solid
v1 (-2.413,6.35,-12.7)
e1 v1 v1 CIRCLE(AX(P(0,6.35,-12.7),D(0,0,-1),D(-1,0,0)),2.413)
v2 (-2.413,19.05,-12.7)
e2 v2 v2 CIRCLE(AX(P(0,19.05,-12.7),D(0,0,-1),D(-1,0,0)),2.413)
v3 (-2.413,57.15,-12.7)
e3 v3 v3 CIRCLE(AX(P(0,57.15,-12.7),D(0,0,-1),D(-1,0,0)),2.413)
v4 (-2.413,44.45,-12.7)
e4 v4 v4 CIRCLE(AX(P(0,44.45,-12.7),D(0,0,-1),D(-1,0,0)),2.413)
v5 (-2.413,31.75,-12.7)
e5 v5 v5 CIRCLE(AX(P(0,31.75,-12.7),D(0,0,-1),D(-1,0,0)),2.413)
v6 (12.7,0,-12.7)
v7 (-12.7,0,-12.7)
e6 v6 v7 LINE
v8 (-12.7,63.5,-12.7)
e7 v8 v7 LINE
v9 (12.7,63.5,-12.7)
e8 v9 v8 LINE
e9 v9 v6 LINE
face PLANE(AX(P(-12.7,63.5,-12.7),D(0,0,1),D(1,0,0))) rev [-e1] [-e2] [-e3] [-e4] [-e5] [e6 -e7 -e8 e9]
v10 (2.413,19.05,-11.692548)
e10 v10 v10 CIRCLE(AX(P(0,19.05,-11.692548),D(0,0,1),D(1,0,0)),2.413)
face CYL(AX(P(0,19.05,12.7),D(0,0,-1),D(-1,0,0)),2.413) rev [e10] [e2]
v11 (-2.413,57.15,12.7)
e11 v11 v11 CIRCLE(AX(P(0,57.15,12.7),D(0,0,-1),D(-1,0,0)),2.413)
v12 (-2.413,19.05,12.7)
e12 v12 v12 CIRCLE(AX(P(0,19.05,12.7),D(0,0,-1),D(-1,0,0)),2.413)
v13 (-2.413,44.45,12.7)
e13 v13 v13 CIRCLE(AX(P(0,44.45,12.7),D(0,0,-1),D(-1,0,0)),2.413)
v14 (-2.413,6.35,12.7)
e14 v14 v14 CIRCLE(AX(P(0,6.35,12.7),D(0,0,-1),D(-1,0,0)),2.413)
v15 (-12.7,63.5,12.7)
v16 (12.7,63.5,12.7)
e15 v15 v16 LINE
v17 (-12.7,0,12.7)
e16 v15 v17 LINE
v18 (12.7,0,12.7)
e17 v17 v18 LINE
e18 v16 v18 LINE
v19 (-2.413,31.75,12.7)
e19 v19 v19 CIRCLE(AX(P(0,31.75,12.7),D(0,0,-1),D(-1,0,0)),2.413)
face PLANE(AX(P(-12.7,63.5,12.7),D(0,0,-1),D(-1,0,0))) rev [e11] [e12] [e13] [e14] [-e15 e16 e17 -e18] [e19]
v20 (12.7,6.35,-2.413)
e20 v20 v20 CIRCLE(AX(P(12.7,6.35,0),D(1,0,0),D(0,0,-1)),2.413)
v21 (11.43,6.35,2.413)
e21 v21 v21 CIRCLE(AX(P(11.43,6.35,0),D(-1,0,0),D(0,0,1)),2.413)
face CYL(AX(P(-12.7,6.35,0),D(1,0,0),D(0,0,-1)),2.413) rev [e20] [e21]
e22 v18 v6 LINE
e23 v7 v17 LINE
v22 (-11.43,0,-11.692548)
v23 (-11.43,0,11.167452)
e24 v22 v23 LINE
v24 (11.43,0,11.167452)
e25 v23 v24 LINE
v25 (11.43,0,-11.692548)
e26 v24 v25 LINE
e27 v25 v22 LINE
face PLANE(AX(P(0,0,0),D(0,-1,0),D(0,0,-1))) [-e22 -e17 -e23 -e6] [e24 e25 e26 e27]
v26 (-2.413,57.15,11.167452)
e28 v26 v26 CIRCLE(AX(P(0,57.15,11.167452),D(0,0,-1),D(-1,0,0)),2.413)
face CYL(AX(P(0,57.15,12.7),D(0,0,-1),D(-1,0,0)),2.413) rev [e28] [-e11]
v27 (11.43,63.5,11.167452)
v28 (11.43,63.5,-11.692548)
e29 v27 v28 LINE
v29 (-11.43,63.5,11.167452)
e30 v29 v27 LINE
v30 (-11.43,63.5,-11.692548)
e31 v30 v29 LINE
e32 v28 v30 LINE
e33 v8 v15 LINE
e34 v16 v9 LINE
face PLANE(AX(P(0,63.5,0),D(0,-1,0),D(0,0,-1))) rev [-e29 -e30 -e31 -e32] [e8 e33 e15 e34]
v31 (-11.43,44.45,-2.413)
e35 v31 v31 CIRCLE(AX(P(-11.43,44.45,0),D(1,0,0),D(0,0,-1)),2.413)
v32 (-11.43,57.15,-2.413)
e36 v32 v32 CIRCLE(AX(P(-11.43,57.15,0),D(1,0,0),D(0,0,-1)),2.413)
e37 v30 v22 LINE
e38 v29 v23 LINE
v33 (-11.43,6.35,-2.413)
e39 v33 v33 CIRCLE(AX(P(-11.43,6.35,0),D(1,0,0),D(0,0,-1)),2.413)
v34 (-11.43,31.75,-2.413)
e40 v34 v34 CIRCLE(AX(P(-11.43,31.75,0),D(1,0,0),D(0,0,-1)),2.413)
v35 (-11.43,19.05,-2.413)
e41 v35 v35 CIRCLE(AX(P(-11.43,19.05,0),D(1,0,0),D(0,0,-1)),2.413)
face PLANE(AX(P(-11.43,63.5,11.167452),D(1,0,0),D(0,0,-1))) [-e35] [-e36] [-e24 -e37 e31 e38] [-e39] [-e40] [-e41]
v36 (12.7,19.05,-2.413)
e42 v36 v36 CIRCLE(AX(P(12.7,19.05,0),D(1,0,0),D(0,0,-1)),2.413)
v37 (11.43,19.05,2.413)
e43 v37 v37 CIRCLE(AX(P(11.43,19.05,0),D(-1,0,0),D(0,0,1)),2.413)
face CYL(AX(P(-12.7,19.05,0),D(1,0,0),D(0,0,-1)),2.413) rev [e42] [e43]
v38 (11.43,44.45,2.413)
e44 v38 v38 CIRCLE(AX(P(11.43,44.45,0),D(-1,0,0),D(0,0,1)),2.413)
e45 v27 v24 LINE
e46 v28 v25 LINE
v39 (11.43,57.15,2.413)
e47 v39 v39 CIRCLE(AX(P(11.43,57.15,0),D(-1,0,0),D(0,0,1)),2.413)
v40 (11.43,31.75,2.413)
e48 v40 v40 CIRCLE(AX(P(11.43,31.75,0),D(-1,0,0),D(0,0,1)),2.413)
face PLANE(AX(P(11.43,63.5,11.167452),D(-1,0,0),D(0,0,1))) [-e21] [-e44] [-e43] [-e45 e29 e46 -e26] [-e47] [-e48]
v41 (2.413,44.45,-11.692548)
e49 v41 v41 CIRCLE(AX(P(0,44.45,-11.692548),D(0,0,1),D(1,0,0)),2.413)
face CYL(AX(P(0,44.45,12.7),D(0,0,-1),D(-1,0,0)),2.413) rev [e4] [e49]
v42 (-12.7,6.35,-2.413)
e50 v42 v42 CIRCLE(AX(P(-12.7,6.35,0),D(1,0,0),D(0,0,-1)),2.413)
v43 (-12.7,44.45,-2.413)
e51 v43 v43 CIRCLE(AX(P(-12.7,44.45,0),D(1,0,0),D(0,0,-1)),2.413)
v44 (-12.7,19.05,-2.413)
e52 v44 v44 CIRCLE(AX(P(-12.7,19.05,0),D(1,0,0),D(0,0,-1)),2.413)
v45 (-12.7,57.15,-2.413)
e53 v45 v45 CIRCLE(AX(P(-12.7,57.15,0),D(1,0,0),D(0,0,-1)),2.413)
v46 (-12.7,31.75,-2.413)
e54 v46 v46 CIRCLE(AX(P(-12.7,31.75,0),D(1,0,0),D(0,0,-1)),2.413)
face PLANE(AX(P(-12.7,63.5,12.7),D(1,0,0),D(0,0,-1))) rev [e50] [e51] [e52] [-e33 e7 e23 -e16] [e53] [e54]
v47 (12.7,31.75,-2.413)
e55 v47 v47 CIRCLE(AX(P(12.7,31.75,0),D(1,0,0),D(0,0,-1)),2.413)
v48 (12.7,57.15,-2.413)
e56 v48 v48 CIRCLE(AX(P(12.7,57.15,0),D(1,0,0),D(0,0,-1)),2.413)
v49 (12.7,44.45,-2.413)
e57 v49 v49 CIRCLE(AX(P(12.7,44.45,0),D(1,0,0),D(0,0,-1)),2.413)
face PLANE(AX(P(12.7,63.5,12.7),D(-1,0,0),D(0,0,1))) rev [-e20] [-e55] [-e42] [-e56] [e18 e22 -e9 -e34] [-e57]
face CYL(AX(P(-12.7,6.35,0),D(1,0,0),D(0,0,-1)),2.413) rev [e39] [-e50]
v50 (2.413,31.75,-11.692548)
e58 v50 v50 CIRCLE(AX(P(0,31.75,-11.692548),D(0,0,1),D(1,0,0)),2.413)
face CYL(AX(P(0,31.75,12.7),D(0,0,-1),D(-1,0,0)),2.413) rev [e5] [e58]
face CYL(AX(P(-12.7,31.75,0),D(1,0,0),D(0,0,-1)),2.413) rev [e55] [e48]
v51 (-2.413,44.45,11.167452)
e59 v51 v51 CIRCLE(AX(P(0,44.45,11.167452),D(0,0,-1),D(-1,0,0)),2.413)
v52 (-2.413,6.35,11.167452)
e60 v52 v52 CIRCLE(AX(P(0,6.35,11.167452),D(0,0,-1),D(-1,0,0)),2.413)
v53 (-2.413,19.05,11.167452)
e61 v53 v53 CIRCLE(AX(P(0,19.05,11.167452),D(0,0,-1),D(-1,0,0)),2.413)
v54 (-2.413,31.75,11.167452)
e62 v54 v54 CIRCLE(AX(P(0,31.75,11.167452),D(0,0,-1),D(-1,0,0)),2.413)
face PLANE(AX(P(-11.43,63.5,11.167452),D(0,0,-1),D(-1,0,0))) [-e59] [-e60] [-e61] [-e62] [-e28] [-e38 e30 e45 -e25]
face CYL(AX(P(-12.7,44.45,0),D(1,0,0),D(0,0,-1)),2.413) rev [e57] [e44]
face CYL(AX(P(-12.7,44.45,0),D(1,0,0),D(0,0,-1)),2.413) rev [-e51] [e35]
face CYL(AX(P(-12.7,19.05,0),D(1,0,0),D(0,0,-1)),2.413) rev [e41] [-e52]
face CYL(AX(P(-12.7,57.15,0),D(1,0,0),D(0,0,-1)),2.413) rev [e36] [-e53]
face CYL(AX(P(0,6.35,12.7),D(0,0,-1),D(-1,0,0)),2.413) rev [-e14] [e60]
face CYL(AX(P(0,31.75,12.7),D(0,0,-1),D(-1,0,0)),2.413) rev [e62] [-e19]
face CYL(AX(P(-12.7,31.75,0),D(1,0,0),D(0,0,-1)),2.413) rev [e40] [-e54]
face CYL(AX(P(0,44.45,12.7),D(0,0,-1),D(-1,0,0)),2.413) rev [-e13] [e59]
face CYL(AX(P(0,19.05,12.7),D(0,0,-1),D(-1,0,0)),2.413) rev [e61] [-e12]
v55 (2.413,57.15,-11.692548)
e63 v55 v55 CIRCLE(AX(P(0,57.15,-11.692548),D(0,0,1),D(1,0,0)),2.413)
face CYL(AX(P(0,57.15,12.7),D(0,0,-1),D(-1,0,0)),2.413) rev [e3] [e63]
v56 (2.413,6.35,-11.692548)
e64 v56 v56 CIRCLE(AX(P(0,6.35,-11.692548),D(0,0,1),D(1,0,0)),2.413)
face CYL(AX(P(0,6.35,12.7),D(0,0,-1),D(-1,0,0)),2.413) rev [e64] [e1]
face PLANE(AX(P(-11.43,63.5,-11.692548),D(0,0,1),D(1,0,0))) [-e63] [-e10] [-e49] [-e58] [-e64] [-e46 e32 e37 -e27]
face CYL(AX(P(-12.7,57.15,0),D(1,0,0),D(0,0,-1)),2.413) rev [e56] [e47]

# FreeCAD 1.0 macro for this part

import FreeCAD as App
import Part
import Sketcher

V = App.Vector
Q = App.Units.Quantity


def add_polygon(sketch, points):
    """Adds a closed chain of lines whose ends are joined by coincident constraints."""
    first, n = sketch.GeometryCount, len(points)
    for a, b in zip(points, points[1:] + points[:1]):
        sketch.addGeometry(Part.LineSegment(App.Vector(*a, 0), App.Vector(*b, 0)), False)
    for i in range(n):
        sketch.addConstraint(Sketcher.Constraint("Coincident", first + i, 2, first + (i + 1) % n, 1))

doc = App.newDocument("Part")
body = doc.addObject("PartDesign::Body", "Body")

sketch1 = body.newObject("Sketcher::SketchObject", "Sketch")
sketch1.AttachmentSupport = (doc.getObject("XZ_Plane"), [""])
sketch1.MapMode = "FlatFace"
add_polygon(sketch1, [(-13, -13), (-13, 13), (13, 13), (13, -13)])
add_polygon(sketch1, [(11, 11), (-11, 11), (-11, -12), (11, -12)])
sketch1.addConstraint([
    Sketcher.Constraint("Vertical", 0),
    Sketcher.Constraint("Horizontal", 1),
    Sketcher.Constraint("Vertical", 2),
    Sketcher.Constraint("Horizontal", 3),
    Sketcher.Constraint("Horizontal", 4),
    Sketcher.Constraint("Vertical", 5),
    Sketcher.Constraint("Horizontal", 6),
    Sketcher.Constraint("Vertical", 7),
    Sketcher.Constraint("Symmetric", 0, 2, 2, 2, -1, 1),
    Sketcher.Constraint("Equal", 3, 0),
    Sketcher.Constraint("Equal", 6, 5),
    Sketcher.Constraint("DistanceX", 1, 1, 1, 2, Q("1 in")),
    Sketcher.Constraint("DistanceX", 4, 2, 4, 1, Q("0.9 in")),
    Sketcher.Constraint("DistanceX", 4, 2, -1, 1, Q("0.45 in")),
    Sketcher.Constraint("DistanceY", -1, 1, 4, 2, Q("11.167452 mm")),
])
pad1 = body.newObject("PartDesign::Pad", "Pad")
pad1.Profile = sketch1
pad1.Length = Q("2.5 in")
pad1.Reversed = True

sketch2 = body.newObject("Sketcher::SketchObject", "Sketch001")
sketch2.AttachmentSupport = (doc.getObject("XY_Plane"), [""])
sketch2.MapMode = "FlatFace"
sketch2.AttachmentOffset = App.Placement(V(0, 0, -0.5 * 25.4), App.Rotation())
sketch2.addGeometry([
    Part.Circle(V(0, 57.1, 0), V(0, 0, 1), 2.4),
    Part.Circle(V(0, 44.5, 0), V(0, 0, 1), 2.4),
    Part.Circle(V(0, 31.8, 0), V(0, 0, 1), 2.4),
    Part.Circle(V(0, 19.1, 0), V(0, 0, 1), 2.4),
    Part.Circle(V(0, 6.3, 0), V(0, 0, 1), 2.4),
    Part.Circle(V(0, -6.3, 0), V(0, 0, 1), 2.4),
], False)
sketch2.addConstraint([
    Sketcher.Constraint("Equal", 0, 1),
    Sketcher.Constraint("Equal", 1, 2),
    Sketcher.Constraint("Equal", 2, 3),
    Sketcher.Constraint("Equal", 3, 4),
    Sketcher.Constraint("Equal", 4, 5),
    Sketcher.Constraint("Symmetric", 4, 3, 5, 3, -1, 1),
    Sketcher.Constraint("PointOnObject", 0, 3, -2),
    Sketcher.Constraint("PointOnObject", 1, 3, -2),
    Sketcher.Constraint("PointOnObject", 2, 3, -2),
    Sketcher.Constraint("PointOnObject", 3, 3, -2),
    Sketcher.Constraint("PointOnObject", 4, 3, -2),
    Sketcher.Constraint("Diameter", 0, Q("0.19 in")),
    Sketcher.Constraint("DistanceY", 2, 3, 0, 3, Q("1 in")),
    Sketcher.Constraint("DistanceY", 3, 3, 1, 3, Q("1 in")),
    Sketcher.Constraint("DistanceY", 4, 3, 2, 3, Q("1 in")),
    Sketcher.Constraint("DistanceY", 5, 3, 3, 3, Q("1 in")),
    Sketcher.Constraint("DistanceY", 1, 3, 0, 3, Q("0.5 in")),
])
pocket1 = body.newObject("PartDesign::Pocket", "Pocket")
pocket1.Profile = sketch2
pocket1.Type = "ThroughAll"
pocket1.Reversed = True

sketch3 = body.newObject("Sketcher::SketchObject", "Sketch002")
sketch3.AttachmentSupport = (doc.getObject("YZ_Plane"), [""])
sketch3.MapMode = "FlatFace"
sketch3.AttachmentOffset = App.Placement(V(0, 0, 0.5 * 25.4), App.Rotation())
sketch3.addGeometry([
    Part.Circle(V(57.1, 0, 0), V(0, 0, 1), 2.4),
    Part.Circle(V(44.5, 0, 0), V(0, 0, 1), 2.4),
    Part.Circle(V(31.8, 0, 0), V(0, 0, 1), 2.4),
    Part.Circle(V(19.1, 0, 0), V(0, 0, 1), 2.4),
    Part.Circle(V(6.3, 0, 0), V(0, 0, 1), 2.4),
    Part.Circle(V(-6.3, 0, 0), V(0, 0, 1), 2.4),
], False)
sketch3.addConstraint([
    Sketcher.Constraint("Equal", 0, 1),
    Sketcher.Constraint("Equal", 1, 2),
    Sketcher.Constraint("Equal", 2, 3),
    Sketcher.Constraint("Equal", 3, 4),
    Sketcher.Constraint("Equal", 4, 5),
    Sketcher.Constraint("Symmetric", 4, 3, 5, 3, -1, 1),
    Sketcher.Constraint("PointOnObject", 0, 3, -1),
    Sketcher.Constraint("PointOnObject", 1, 3, -1),
    Sketcher.Constraint("PointOnObject", 2, 3, -1),
    Sketcher.Constraint("PointOnObject", 3, 3, -1),
    Sketcher.Constraint("PointOnObject", 4, 3, -1),
    Sketcher.Constraint("Diameter", 0, Q("0.19 in")),
    Sketcher.Constraint("DistanceX", 2, 3, 0, 3, Q("1 in")),
    Sketcher.Constraint("DistanceX", 3, 3, 1, 3, Q("1 in")),
    Sketcher.Constraint("DistanceX", 4, 3, 2, 3, Q("1 in")),
    Sketcher.Constraint("DistanceX", 5, 3, 3, 3, Q("1 in")),
    Sketcher.Constraint("DistanceX", 1, 3, 0, 3, Q("0.5 in")),
])
pocket2 = body.newObject("PartDesign::Pocket", "Pocket001")
pocket2.Profile = sketch3
pocket2.Type = "ThroughAll"

doc.recompute()
